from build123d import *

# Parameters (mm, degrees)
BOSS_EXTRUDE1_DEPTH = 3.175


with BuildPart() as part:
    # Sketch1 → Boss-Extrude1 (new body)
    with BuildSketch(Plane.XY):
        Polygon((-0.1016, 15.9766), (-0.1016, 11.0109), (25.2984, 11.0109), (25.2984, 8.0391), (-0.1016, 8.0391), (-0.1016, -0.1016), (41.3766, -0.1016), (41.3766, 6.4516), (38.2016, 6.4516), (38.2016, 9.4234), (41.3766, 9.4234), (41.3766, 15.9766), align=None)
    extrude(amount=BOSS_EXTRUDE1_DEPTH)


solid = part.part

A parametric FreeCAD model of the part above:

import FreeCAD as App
import Part
import Sketcher
Q = App.Units.Quantity

doc = App.newDocument("Part")
body = doc.addObject("PartDesign::Body", "Body")

# Sketch on XY plane
sketch1 = body.newObject("Sketcher::SketchObject", "Sketch")
sketch1.AttachmentSupport = (doc.getObject("XY_Plane"), [""])
sketch1.MapMode = "FlatFace"
sketch1.addGeometry(Part.LineSegment(App.Vector(-0.1016, 15.9766, 0), App.Vector(-0.1016, 11.0109, 0)), False)
sketch1.addGeometry(Part.LineSegment(App.Vector(-0.1016, 11.0109, 0), App.Vector(25.2984, 11.0109, 0)), False)
sketch1.addGeometry(Part.LineSegment(App.Vector(25.2984, 11.0109, 0), App.Vector(25.2984, 8.0391, 0)), False)
sketch1.addGeometry(Part.LineSegment(App.Vector(25.2984, 8.0391, 0), App.Vector(-0.1016, 8.0391, 0)), False)
sketch1.addGeometry(Part.LineSegment(App.Vector(-0.1016, 8.0391, 0), App.Vector(-0.1016, -0.1016, 0)), False)
sketch1.addGeometry(Part.LineSegment(App.Vector(-0.1016, -0.1016, 0), App.Vector(41.3766, -0.1016, 0)), False)
sketch1.addGeometry(Part.LineSegment(App.Vector(41.3766, -0.1016, 0), App.Vector(41.3766, 6.4516, 0)), False)
sketch1.addGeometry(Part.LineSegment(App.Vector(41.3766, 6.4516, 0), App.Vector(38.2016, 6.4516, 0)), False)
sketch1.addGeometry(Part.LineSegment(App.Vector(38.2016, 6.4516, 0), App.Vector(38.2016, 9.4234, 0)), False)
sketch1.addGeometry(Part.LineSegment(App.Vector(38.2016, 9.4234, 0), App.Vector(41.3766, 9.4234, 0)), False)
sketch1.addGeometry(Part.LineSegment(App.Vector(41.3766, 9.4234, 0), App.Vector(41.3766, 15.9766, 0)), False)
sketch1.addGeometry(Part.LineSegment(App.Vector(41.3766, 15.9766, 0), App.Vector(-0.1016, 15.9766, 0)), False)
sketch1.addConstraint(Sketcher.Constraint("Coincident", 0, 2, 1, 1))
sketch1.addConstraint(Sketcher.Constraint("Coincident", 1, 2, 2, 1))
sketch1.addConstraint(Sketcher.Constraint("Coincident", 2, 2, 3, 1))
sketch1.addConstraint(Sketcher.Constraint("Coincident", 3, 2, 4, 1))
sketch1.addConstraint(Sketcher.Constraint("Coincident", 4, 2, 5, 1))
sketch1.addConstraint(Sketcher.Constraint("Coincident", 5, 2, 6, 1))
sketch1.addConstraint(Sketcher.Constraint("Coincident", 6, 2, 7, 1))
sketch1.addConstraint(Sketcher.Constraint("Coincident", 7, 2, 8, 1))
sketch1.addConstraint(Sketcher.Constraint("Coincident", 8, 2, 9, 1))
sketch1.addConstraint(Sketcher.Constraint("Coincident", 9, 2, 10, 1))
sketch1.addConstraint(Sketcher.Constraint("Coincident", 10, 2, 11, 1))
sketch1.addConstraint(Sketcher.Constraint("Coincident", 11, 2, 0, 1))
sketch1.addConstraint(Sketcher.Constraint("Vertical", 0))
sketch1.addConstraint(Sketcher.Constraint("Horizontal", 1))
sketch1.addConstraint(Sketcher.Constraint("Vertical", 2))
sketch1.addConstraint(Sketcher.Constraint("Horizontal", 3))
sketch1.addConstraint(Sketcher.Constraint("Vertical", 4))
sketch1.addConstraint(Sketcher.Constraint("Horizontal", 5))
sketch1.addConstraint(Sketcher.Constraint("Vertical", 6))
sketch1.addConstraint(Sketcher.Constraint("Horizontal", 7))
sketch1.addConstraint(Sketcher.Constraint("Vertical", 8))
sketch1.addConstraint(Sketcher.Constraint("Horizontal", 9))
sketch1.addConstraint(Sketcher.Constraint("Vertical", 10))
sketch1.addConstraint(Sketcher.Constraint("Horizontal", 11))
sketch1.addConstraint(Sketcher.Constraint("Vertical", 0, 2, 3, 2))
sketch1.addConstraint(Sketcher.Constraint("Vertical", 6, 2, 9, 2))
sketch1.addConstraint(Sketcher.Constraint("Equal", 2, 8))
sketch1.addConstraint(Sketcher.Constraint("Equal", 6, 10))
sketch1.addConstraint(Sketcher.Constraint("DistanceX", 1, 1, 1, 2, Q("1 in")))
sketch1.addConstraint(Sketcher.Constraint("DistanceX", 5, 1, 5, 2, Q("1.633 in")))
sketch1.addConstraint(Sketcher.Constraint("DistanceX", 7, 2, 7, 1, Q("0.125 in")))
sketch1.addConstraint(Sketcher.Constraint("DistanceY", 2, 2, 2, 1, Q("0.117 in")))
sketch1.addConstraint(Sketcher.Constraint("DistanceY", 6, 1, 6, 2, Q("0.258 in")))
sketch1.addConstraint(Sketcher.Constraint("DistanceY", 0, 2, 0, 1, Q("0.1955 in")))
sketch1.addConstraint(Sketcher.Constraint("DistanceX", 0, 2, -1, 1, Q("0.004 in")))
sketch1.addConstraint(Sketcher.Constraint("DistanceY", 4, 2, -1, 1, Q("0.004 in")))
pad1 = body.newObject("PartDesign::Pad", "Pad")
pad1.Profile = sketch1
pad1.Length = Q("0.125 in")

doc.recompute()
